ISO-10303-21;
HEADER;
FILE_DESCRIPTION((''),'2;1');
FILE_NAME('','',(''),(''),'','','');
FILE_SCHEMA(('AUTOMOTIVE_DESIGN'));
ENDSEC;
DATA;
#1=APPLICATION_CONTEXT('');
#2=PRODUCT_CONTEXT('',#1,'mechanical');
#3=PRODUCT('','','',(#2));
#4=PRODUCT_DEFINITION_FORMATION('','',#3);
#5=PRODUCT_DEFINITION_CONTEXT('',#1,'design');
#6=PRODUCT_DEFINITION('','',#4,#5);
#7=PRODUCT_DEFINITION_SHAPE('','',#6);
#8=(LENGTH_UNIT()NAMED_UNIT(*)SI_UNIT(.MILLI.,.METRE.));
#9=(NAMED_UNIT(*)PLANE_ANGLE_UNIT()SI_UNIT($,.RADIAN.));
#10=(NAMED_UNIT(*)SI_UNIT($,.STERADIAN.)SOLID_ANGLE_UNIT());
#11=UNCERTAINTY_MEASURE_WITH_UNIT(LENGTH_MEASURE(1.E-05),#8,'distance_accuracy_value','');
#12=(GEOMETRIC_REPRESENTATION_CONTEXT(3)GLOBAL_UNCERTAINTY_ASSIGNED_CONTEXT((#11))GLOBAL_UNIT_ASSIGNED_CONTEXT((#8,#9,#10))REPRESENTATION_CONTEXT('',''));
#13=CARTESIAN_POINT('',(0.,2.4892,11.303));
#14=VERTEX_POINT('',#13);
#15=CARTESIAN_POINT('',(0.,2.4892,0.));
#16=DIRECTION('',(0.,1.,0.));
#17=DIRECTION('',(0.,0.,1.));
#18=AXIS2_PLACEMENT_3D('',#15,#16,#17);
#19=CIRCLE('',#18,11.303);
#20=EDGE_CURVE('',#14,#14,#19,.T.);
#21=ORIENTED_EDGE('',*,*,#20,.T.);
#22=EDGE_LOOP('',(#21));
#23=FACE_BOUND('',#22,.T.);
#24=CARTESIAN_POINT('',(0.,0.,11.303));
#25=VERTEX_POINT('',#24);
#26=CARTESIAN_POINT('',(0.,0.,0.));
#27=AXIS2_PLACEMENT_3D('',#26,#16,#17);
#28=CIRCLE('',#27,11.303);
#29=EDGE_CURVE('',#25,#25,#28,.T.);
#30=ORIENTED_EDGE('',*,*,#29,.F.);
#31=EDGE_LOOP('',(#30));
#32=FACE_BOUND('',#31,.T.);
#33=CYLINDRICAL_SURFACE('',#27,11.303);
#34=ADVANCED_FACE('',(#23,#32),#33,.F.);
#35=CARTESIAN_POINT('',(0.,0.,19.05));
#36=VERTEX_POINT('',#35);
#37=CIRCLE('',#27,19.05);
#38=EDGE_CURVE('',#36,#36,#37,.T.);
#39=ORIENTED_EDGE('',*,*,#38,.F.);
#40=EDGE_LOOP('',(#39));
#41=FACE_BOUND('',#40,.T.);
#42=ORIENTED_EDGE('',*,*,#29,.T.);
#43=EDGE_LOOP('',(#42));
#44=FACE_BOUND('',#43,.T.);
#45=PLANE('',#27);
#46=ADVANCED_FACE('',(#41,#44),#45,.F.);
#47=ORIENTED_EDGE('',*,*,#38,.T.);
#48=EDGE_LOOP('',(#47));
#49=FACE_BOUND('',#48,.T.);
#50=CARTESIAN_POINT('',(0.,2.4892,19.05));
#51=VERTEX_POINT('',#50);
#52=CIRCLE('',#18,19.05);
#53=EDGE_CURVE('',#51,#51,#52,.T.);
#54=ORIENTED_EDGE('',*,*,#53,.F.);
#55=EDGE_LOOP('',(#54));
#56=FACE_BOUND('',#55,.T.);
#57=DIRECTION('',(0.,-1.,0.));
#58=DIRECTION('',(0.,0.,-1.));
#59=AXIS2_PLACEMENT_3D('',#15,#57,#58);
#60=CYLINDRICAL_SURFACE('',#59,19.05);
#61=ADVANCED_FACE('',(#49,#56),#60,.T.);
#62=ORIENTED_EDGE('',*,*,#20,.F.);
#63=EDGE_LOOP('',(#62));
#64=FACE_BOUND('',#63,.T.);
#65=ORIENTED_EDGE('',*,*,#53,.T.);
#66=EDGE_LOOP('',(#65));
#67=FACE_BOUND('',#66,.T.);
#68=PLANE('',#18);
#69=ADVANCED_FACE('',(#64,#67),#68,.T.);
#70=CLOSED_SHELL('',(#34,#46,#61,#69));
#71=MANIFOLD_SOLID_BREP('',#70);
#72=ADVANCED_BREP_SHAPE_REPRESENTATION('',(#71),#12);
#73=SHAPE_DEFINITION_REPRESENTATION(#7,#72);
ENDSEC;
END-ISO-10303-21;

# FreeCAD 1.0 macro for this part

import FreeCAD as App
import Part
import Sketcher

V = App.Vector
Q = App.Units.Quantity

doc = App.newDocument("Part")
body = doc.addObject("PartDesign::Body", "Body")

sketch1 = doc.addObject("Sketcher::SketchObject", "Sketch")
body.addObject(sketch1)
sketch1.AttachmentSupport = (doc.XZ_Plane, [""])
sketch1.MapMode = "FlatFace"
sketch1.addGeometry(Part.Circle(V(0, 0, 0), V(0, 0, 1), 19), False)
sketch1.addConstraint([
    Sketcher.Constraint("Coincident", 0, 3, -1, 1),
    Sketcher.Constraint("Diameter", 0, Q("1.5 in")),
])
pad1 = doc.addObject("PartDesign::Pad", "Pad")
body.addObject(pad1)
pad1.Profile = sketch1
pad1.Length = Q("0.098 in")
pad1.Reversed = True

sketch2 = doc.addObject("Sketcher::SketchObject", "Sketch001")
body.addObject(sketch2)
sketch2.AttachmentSupport = (doc.XZ_Plane, [""])
sketch2.MapMode = "FlatFace"
sketch2.AttachmentOffset = App.Placement(V(0, 0, -0.098 * 25.4), App.Rotation())
sketch2.addGeometry(Part.Circle(V(0, 0, 0), V(0, 0, 1), 11), False)
sketch2.addConstraint([
    Sketcher.Constraint("Coincident", 0, 3, -1, 1),
    Sketcher.Constraint("Diameter", 0, Q("0.89 in")),
])
pocket1 = doc.addObject("PartDesign::Pocket", "Pocket")
body.addObject(pocket1)
pocket1.Profile = sketch2
pocket1.Type = "ThroughAll"
pocket1.Reversed = True

doc.recompute()
